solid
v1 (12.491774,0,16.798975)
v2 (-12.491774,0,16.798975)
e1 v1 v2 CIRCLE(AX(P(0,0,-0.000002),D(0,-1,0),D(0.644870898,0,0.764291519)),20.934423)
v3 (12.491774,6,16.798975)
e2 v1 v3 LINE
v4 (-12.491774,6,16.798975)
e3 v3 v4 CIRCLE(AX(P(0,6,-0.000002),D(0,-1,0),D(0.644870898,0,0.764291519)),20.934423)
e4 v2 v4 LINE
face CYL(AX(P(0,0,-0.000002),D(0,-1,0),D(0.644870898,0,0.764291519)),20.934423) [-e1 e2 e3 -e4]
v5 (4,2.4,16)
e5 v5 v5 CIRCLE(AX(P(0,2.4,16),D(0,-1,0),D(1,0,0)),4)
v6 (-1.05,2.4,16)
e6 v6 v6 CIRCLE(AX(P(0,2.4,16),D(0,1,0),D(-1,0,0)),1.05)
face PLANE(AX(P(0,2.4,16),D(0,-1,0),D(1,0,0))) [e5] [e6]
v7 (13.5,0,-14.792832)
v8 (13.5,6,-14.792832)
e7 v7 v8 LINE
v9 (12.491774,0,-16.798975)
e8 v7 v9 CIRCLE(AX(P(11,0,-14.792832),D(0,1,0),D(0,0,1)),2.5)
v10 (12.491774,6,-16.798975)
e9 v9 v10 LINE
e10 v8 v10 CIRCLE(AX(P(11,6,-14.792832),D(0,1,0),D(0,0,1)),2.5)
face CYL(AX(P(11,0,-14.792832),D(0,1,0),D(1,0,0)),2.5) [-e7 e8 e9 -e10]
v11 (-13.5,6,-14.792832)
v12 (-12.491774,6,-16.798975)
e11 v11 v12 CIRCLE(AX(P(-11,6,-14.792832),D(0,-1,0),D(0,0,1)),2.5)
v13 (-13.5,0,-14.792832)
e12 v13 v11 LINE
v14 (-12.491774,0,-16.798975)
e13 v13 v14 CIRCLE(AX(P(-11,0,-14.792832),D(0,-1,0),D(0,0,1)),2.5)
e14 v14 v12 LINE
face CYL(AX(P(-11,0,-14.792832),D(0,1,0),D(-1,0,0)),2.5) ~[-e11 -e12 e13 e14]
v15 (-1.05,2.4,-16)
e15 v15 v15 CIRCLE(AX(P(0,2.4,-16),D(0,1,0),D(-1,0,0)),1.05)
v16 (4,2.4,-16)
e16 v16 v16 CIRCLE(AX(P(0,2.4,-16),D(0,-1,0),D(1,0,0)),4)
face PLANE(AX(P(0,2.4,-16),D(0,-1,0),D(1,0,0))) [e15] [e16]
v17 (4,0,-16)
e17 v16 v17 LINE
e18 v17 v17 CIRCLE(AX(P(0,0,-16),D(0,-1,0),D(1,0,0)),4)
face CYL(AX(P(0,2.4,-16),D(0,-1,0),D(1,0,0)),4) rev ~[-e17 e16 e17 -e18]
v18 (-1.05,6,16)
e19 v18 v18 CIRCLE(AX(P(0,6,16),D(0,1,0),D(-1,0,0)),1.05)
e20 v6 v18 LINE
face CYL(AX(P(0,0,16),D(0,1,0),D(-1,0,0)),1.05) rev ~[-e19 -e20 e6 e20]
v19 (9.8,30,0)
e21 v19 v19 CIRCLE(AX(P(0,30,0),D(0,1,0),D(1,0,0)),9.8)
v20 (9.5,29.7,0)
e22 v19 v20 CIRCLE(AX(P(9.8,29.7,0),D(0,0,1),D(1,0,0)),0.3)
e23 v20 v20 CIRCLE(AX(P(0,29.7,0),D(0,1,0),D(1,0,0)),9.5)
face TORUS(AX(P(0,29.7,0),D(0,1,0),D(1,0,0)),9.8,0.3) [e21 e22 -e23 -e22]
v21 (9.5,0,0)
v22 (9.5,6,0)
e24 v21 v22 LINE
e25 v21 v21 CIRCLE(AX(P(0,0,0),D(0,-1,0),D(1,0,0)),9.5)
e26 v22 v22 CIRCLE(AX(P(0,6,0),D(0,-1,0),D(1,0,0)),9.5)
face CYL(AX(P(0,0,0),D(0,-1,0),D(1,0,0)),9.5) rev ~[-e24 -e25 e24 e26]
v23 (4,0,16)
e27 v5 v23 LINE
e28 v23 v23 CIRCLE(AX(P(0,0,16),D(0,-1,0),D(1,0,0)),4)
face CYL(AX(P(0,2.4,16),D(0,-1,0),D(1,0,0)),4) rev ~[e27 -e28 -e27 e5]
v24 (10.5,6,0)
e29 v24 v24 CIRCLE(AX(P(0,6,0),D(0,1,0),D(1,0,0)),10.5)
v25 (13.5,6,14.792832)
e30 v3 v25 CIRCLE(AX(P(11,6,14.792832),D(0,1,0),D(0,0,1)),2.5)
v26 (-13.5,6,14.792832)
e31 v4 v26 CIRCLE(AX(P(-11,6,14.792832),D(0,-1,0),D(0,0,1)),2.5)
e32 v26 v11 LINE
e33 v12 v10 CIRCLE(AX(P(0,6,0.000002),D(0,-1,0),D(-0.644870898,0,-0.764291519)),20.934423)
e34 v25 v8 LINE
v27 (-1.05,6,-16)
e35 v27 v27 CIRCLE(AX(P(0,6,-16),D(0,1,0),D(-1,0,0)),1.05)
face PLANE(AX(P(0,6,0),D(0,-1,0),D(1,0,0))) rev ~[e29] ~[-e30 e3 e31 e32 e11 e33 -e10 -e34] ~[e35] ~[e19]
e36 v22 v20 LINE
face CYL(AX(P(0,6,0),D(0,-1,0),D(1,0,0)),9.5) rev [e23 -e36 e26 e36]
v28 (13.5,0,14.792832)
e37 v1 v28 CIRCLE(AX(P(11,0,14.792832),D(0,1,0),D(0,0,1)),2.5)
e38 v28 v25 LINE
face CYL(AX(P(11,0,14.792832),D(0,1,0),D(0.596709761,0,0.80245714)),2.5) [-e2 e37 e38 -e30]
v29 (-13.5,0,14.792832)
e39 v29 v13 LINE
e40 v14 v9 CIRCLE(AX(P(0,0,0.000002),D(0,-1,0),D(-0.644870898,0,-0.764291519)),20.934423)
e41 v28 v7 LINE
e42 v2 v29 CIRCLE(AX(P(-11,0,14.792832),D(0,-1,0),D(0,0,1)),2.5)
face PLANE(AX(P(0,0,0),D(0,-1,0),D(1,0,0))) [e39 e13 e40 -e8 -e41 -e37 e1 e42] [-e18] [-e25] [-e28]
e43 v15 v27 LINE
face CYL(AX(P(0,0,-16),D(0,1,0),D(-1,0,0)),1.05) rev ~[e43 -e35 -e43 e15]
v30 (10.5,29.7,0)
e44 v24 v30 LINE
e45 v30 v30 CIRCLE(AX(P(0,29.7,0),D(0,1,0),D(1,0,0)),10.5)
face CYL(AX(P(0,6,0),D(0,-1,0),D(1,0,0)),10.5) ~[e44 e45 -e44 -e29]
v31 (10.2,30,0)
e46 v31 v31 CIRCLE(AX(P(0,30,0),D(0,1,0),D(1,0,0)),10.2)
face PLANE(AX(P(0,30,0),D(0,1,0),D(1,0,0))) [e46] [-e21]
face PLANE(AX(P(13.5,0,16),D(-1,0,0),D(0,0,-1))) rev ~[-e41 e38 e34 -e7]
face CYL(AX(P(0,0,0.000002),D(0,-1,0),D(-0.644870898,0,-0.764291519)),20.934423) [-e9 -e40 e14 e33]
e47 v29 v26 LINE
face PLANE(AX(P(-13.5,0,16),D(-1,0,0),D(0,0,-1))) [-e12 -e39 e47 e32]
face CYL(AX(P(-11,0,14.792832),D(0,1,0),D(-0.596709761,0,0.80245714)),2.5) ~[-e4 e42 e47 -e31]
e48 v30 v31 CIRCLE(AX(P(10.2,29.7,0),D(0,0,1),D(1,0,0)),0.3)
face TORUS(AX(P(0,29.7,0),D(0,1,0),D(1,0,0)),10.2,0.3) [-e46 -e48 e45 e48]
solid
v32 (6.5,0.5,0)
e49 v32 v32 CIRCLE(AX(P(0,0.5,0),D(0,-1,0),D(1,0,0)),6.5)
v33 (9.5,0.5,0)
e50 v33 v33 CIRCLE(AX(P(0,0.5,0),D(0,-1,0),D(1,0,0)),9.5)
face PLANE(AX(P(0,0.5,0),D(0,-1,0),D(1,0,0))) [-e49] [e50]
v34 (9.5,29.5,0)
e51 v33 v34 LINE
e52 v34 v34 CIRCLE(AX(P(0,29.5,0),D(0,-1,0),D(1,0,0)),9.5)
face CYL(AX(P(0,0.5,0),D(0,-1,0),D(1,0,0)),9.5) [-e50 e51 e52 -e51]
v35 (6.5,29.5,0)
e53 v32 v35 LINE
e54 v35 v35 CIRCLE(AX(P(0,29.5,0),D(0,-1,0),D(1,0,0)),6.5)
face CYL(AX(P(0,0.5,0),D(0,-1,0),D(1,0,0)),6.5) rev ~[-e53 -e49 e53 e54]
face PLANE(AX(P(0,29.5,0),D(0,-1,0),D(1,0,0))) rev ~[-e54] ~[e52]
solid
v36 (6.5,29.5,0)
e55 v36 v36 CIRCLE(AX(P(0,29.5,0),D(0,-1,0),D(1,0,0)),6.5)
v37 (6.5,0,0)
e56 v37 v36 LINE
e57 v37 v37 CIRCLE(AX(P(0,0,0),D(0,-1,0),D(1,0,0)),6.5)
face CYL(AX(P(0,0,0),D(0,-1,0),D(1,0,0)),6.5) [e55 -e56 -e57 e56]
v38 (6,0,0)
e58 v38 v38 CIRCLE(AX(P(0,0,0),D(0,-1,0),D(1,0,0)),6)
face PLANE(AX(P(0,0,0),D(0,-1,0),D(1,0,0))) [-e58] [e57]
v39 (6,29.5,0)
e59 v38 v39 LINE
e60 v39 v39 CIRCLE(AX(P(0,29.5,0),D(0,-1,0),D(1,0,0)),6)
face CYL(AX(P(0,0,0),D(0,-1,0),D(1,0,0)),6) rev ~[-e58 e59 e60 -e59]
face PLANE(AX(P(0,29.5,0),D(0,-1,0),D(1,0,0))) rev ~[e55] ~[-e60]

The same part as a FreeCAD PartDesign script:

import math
import FreeCAD as App
import Part
import Sketcher


def edges_at(feature, points):
    """Names of the edges that pass closest to the given points."""
    edges = feature.Shape.Edges
    near = lambda p: min(range(len(edges)), key=lambda i: edges[i].distToShape(Part.Vertex(*p))[0])
    return sorted({f"Edge{near(p) + 1}" for p in points})

doc = App.newDocument("Part")
body = doc.addObject("PartDesign::Body", "Body")

# Sketch on XZ plane
sketch1 = body.newObject("Sketcher::SketchObject", "Sketch")
sketch1.AttachmentSupport = (doc.getObject("XZ_Plane"), [""])
sketch1.MapMode = "FlatFace"
sketch1.addGeometry(Part.ArcOfCircle(Part.Circle(App.Vector(0, -0.000002, 0), App.Vector(0, 0, 1), 20.934423), math.radians(49.844003), math.radians(130.155997)), False)
sketch1.addGeometry(Part.LineSegment(App.Vector(-13.5, 16, 0), App.Vector(-13.5, -16, 0)), False)
sketch1.addGeometry(Part.ArcOfCircle(Part.Circle(App.Vector(0, 0.000002, 0), App.Vector(0, 0, 1), 20.934423), math.radians(-130.155997), math.radians(-49.844003)), False)
sketch1.addGeometry(Part.LineSegment(App.Vector(13.5, -16, 0), App.Vector(13.5, 16, 0)), False)
sketch1.addGeometry(Part.Circle(App.Vector(0, 0, 0), App.Vector(0, 0, 1), 9.5), False)
sketch1.addConstraint(Sketcher.Constraint("Coincident", 0, 2, 1, 1))
sketch1.addConstraint(Sketcher.Constraint("Coincident", 1, 2, 2, 1))
sketch1.addConstraint(Sketcher.Constraint("Coincident", 2, 2, 3, 1))
sketch1.addConstraint(Sketcher.Constraint("Coincident", 3, 2, 0, 1))
sketch1.addConstraint(Sketcher.Constraint("Vertical", 1))
sketch1.addConstraint(Sketcher.Constraint("Vertical", 3))
sketch1.addConstraint(Sketcher.Constraint("Coincident", 0, 3, -1, 1))
sketch1.addConstraint(Sketcher.Constraint("Coincident", 2, 3, -1, 1))
sketch1.addConstraint(Sketcher.Constraint("Coincident", 4, 3, -1, 1))
sketch1.addConstraint(Sketcher.Constraint("Equal", 0, 2))
sketch1.addConstraint(Sketcher.Constraint("Horizontal", 1, 2, 2, 2))
sketch1.addConstraint(Sketcher.Constraint("Diameter", 4, 19.0))
sketch1.addConstraint(Sketcher.Constraint("DistanceY", 1, 2, 1, 1, 32.0))
sketch1.addConstraint(Sketcher.Constraint("DistanceX", 1, 2, 2, 2, 27.0))
pad1 = body.newObject("PartDesign::Pad", "Pad")
pad1.Profile = sketch1
pad1.Length = 6
pad1.Reversed = True

# Sketch on XZ plane
sketch2 = body.newObject("Sketcher::SketchObject", "Sketch001")
sketch2.AttachmentSupport = (doc.getObject("XZ_Plane"), [""])
sketch2.MapMode = "FlatFace"
sketch2.addGeometry(Part.Circle(App.Vector(0, 16, 0), App.Vector(0, 0, 1), 1.05), False)
sketch2.addGeometry(Part.Circle(App.Vector(0, -16, 0), App.Vector(0, 0, 1), 1.05), False)
sketch2.addConstraint(Sketcher.Constraint("Equal", 0, 1))
sketch2.addConstraint(Sketcher.Constraint("Symmetric", 0, 3, 1, 3, -1, 1))
sketch2.addConstraint(Sketcher.Constraint("PointOnObject", 0, 3, -2))
sketch2.addConstraint(Sketcher.Constraint("Diameter", 0, 2.1))
sketch2.addConstraint(Sketcher.Constraint("DistanceY", -1, 1, 0, 3, 16.0))
doc.recompute()
hole = body.newObject("PartDesign::Hole", "Hole")
hole.Profile = sketch2
hole.ThreadType = "None"
hole.Diameter = 2.1
hole.DepthType = "ThroughAll"
hole.HoleCutType = "Counterbore"
hole.HoleCutDiameter = 8
hole.HoleCutDepth = 2.4

# Sketch on XZ plane
sketch3 = body.newObject("Sketcher::SketchObject", "Sketch002")
sketch3.AttachmentSupport = (doc.getObject("XZ_Plane"), [""])
sketch3.MapMode = "FlatFace"
sketch3.AttachmentOffset = App.Placement(App.Vector(0, 0, -6), App.Rotation())
sketch3.addGeometry(Part.Circle(App.Vector(0, 0, 0), App.Vector(0, 0, 1), 10.5), False)
sketch3.addGeometry(Part.Circle(App.Vector(0, 0, 0), App.Vector(0, 0, 1), 9.5), False)
sketch3.addConstraint(Sketcher.Constraint("Coincident", 0, 3, -1, 1))
sketch3.addConstraint(Sketcher.Constraint("Coincident", 1, 3, -1, 1))
sketch3.addConstraint(Sketcher.Constraint("Diameter", 0, 21.0))
sketch3.addConstraint(Sketcher.Constraint("Diameter", 1, 19.0))
pad2 = body.newObject("PartDesign::Pad", "Pad001")
pad2.Profile = sketch3
pad2.Length = 24
pad2.Reversed = True
doc.recompute()

fillet = body.newObject("PartDesign::Fillet", "Fillet")
fillet.Base = (pad2, edges_at(pad2, [
    (13.5, 3, -16),
    (13.5, 3, 16),
    (-13.5, 3, 16),
    (-13.5, 3, -16),
]))
fillet.Radius = 2.5
doc.recompute()

fillet2 = body.newObject("PartDesign::Fillet", "Fillet001")
fillet2.Base = (fillet, edges_at(fillet, [(-10.5, 30, 0), (-9.5, 30, 0)]))
fillet2.Radius = 0.3
body2 = doc.addObject("PartDesign::Body", "Body001")

# Sketch on XZ plane
sketch4 = body2.newObject("Sketcher::SketchObject", "Sketch003")
sketch4.AttachmentSupport = (doc.getObject("XZ_Plane001"), [""])
sketch4.MapMode = "FlatFace"
sketch4.addGeometry(Part.Circle(App.Vector(0, 0, 0), App.Vector(0, 0, 1), 9.5), False)
sketch4.addGeometry(Part.Circle(App.Vector(0, 0, 0), App.Vector(0, 0, 1), 6.5), False)
sketch4.addConstraint(Sketcher.Constraint("Coincident", 0, 3, -1, 1))
sketch4.addConstraint(Sketcher.Constraint("Coincident", 1, 3, -1, 1))
sketch4.addConstraint(Sketcher.Constraint("Diameter", 0, 19.0))
sketch4.addConstraint(Sketcher.Constraint("Diameter", 1, 13.0))
pad3 = body2.newObject("PartDesign::Pad", "Pad002")
pad3.Profile = sketch4
pad3.Length = 29
pad3.Reversed = True
body3 = doc.addObject("PartDesign::Body", "Body002")
doc.recompute()

body2.Placement = App.Placement(App.Vector(0, 0.5, 0), App.Rotation(App.Vector(0, 0, 1), 0))
boolean = body3.newObject("PartDesign::Boolean", "Boolean")
boolean.Type = "Fuse"
boolean.addObjects([body2])
body4 = doc.addObject("PartDesign::Body", "Body003")

# Sketch on XZ plane
sketch5 = body4.newObject("Sketcher::SketchObject", "Sketch004")
sketch5.AttachmentSupport = (doc.getObject("XZ_Plane003"), [""])
sketch5.MapMode = "FlatFace"
sketch5.addGeometry(Part.Circle(App.Vector(0, 0, 0), App.Vector(0, 0, 1), 6.5), False)
sketch5.addGeometry(Part.Circle(App.Vector(0, 0, 0), App.Vector(0, 0, 1), 6), False)
sketch5.addConstraint(Sketcher.Constraint("Coincident", 0, 3, -1, 1))
sketch5.addConstraint(Sketcher.Constraint("Coincident", 1, 3, -1, 1))
sketch5.addConstraint(Sketcher.Constraint("Diameter", 0, 13.0))
sketch5.addConstraint(Sketcher.Constraint("Diameter", 1, 12.0))
pad4 = body4.newObject("PartDesign::Pad", "Pad003")
pad4.Profile = sketch5
pad4.Length = 29.5
pad4.Reversed = True

doc.recompute()
